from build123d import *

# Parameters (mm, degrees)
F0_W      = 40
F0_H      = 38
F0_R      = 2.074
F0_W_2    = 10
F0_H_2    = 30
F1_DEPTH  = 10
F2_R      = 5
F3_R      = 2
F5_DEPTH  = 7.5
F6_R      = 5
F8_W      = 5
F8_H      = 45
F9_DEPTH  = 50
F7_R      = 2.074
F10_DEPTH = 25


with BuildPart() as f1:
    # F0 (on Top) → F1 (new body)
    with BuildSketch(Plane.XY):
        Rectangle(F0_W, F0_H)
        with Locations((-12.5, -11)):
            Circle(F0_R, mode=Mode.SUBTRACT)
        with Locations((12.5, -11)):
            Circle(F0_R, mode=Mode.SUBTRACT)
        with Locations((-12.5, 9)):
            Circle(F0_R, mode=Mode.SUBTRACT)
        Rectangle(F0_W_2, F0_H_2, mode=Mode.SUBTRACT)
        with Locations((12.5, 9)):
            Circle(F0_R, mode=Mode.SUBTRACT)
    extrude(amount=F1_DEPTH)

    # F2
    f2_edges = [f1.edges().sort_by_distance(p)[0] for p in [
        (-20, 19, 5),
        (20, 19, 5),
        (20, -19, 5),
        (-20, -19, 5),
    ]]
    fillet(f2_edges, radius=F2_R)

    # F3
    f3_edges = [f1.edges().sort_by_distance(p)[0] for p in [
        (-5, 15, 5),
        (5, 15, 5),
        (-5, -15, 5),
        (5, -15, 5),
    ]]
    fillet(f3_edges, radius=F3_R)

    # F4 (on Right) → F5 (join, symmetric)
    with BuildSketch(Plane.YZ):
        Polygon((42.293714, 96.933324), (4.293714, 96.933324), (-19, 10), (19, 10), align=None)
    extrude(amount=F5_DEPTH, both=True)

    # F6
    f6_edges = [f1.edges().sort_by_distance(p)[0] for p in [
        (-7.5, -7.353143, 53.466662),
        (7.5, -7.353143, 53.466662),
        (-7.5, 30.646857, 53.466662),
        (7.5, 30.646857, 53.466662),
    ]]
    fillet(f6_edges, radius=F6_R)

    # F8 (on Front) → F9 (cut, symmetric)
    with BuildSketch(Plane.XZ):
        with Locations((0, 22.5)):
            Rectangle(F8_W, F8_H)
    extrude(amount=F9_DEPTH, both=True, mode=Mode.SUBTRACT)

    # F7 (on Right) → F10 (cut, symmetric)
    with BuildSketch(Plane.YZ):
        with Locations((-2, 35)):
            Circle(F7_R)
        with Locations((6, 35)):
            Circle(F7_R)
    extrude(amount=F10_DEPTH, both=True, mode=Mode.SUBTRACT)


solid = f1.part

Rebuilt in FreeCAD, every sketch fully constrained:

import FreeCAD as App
import Part
import Sketcher

V = App.Vector
Q = App.Units.Quantity


def edges_at(feature, points):
    """Names of the edges that pass closest to the given points."""
    edges = feature.Shape.Edges
    near = lambda p: min(range(len(edges)), key=lambda i: edges[i].distToShape(Part.Vertex(*p))[0])
    return sorted({f"Edge{near(p) + 1}" for p in points})

doc = App.newDocument("Part")
body = doc.addObject("PartDesign::Body", "Body")

# Sketch on XY plane
sketch1 = doc.addObject("Sketcher::SketchObject", "Sketch")
body.addObject(sketch1)
sketch1.AttachmentSupport = (doc.XY_Plane, [""])
sketch1.MapMode = "FlatFace"
sketch1.addGeometry(Part.LineSegment(V(-20, 19, 0), V(-20, -19, 0)), False)
sketch1.addGeometry(Part.LineSegment(V(-20, -19, 0), V(20, -19, 0)), False)
sketch1.addGeometry(Part.LineSegment(V(20, -19, 0), V(20, 19, 0)), False)
sketch1.addGeometry(Part.LineSegment(V(20, 19, 0), V(-20, 19, 0)), False)
sketch1.addGeometry(Part.Circle(V(-12.5, -11, 0), V(0, 0, 1), 2.1), False)
sketch1.addGeometry(Part.Circle(V(12.5, -11, 0), V(0, 0, 1), 2.1), False)
sketch1.addGeometry(Part.LineSegment(V(5, -15, 0), V(-5, -15, 0)), False)
sketch1.addGeometry(Part.LineSegment(V(-5, -15, 0), V(-5, 15, 0)), False)
sketch1.addGeometry(Part.LineSegment(V(-5, 15, 0), V(5, 15, 0)), False)
sketch1.addGeometry(Part.LineSegment(V(5, 15, 0), V(5, -15, 0)), False)
sketch1.addGeometry(Part.Circle(V(-12.5, 9, 0), V(0, 0, 1), 2.1), False)
sketch1.addGeometry(Part.Circle(V(12.5, 9, 0), V(0, 0, 1), 2.1), False)
sketch1.addConstraint(Sketcher.Constraint("Coincident", 0, 2, 1, 1))
sketch1.addConstraint(Sketcher.Constraint("Coincident", 1, 2, 2, 1))
sketch1.addConstraint(Sketcher.Constraint("Coincident", 2, 2, 3, 1))
sketch1.addConstraint(Sketcher.Constraint("Coincident", 3, 2, 0, 1))
sketch1.addConstraint(Sketcher.Constraint("Coincident", 6, 2, 7, 1))
sketch1.addConstraint(Sketcher.Constraint("Coincident", 7, 2, 8, 1))
sketch1.addConstraint(Sketcher.Constraint("Coincident", 8, 2, 9, 1))
sketch1.addConstraint(Sketcher.Constraint("Coincident", 9, 2, 6, 1))
sketch1.addConstraint(Sketcher.Constraint("Vertical", 0))
sketch1.addConstraint(Sketcher.Constraint("Horizontal", 1))
sketch1.addConstraint(Sketcher.Constraint("Vertical", 2))
sketch1.addConstraint(Sketcher.Constraint("Horizontal", 3))
sketch1.addConstraint(Sketcher.Constraint("Horizontal", 6))
sketch1.addConstraint(Sketcher.Constraint("Vertical", 7))
sketch1.addConstraint(Sketcher.Constraint("Horizontal", 8))
sketch1.addConstraint(Sketcher.Constraint("Vertical", 9))
sketch1.addConstraint(Sketcher.Constraint("Equal", 4, 5))
sketch1.addConstraint(Sketcher.Constraint("Equal", 5, 10))
sketch1.addConstraint(Sketcher.Constraint("Equal", 10, 11))
sketch1.addConstraint(Sketcher.Constraint("Symmetric", 0, 2, 2, 2, -1, 1))
sketch1.addConstraint(Sketcher.Constraint("Symmetric", 6, 2, 8, 2, -1, 1))
sketch1.addConstraint(Sketcher.Constraint("Symmetric", 4, 3, 5, 3, -2))
sketch1.addConstraint(Sketcher.Constraint("Symmetric", 10, 3, 11, 3, -2))
sketch1.addConstraint(Sketcher.Constraint("Vertical", 4, 3, 10, 3))
sketch1.addConstraint(Sketcher.Constraint("DistanceX", 1, 1, 1, 2, 40.0))
sketch1.addConstraint(Sketcher.Constraint("DistanceX", 6, 2, 6, 1, 10.0))
sketch1.addConstraint(Sketcher.Constraint("DistanceY", 0, 2, 0, 1, 38.0))
sketch1.addConstraint(Sketcher.Constraint("DistanceY", 7, 1, 7, 2, 30.0))
sketch1.addConstraint(Sketcher.Constraint("Diameter", 4, 4.148))
sketch1.addConstraint(Sketcher.Constraint("DistanceY", 4, 3, -1, 1, 11.0))
sketch1.addConstraint(Sketcher.Constraint("DistanceY", -1, 1, 10, 3, 9.0))
sketch1.addConstraint(Sketcher.Constraint("DistanceX", 4, 3, 5, 3, 25.0))
pad1 = doc.addObject("PartDesign::Pad", "Pad")
body.addObject(pad1)
pad1.Profile = sketch1
pad1.Length = 10
doc.recompute()

fillet = doc.addObject("PartDesign::Fillet", "Fillet")
body.addObject(fillet)
fillet.Base = (pad1, edges_at(pad1, [
    (-20, 19, 5),
    (20, 19, 5),
    (20, -19, 5),
    (-20, -19, 5),
]))
fillet.Radius = 5
doc.recompute()

fillet2 = doc.addObject("PartDesign::Fillet", "Fillet001")
body.addObject(fillet2)
fillet2.Base = (fillet, edges_at(fillet, [
    (-5, 15, 5),
    (5, 15, 5),
    (-5, -15, 5),
    (5, -15, 5),
]))
fillet2.Radius = 2

# Sketch on YZ plane
sketch2 = doc.addObject("Sketcher::SketchObject", "Sketch001")
body.addObject(sketch2)
sketch2.AttachmentSupport = (doc.YZ_Plane, [""])
sketch2.MapMode = "FlatFace"
sketch2.addGeometry(Part.LineSegment(V(42, 97, 0), V(4, 97, 0)), False)
sketch2.addGeometry(Part.LineSegment(V(4, 97, 0), V(-19, 10, 0)), False)
sketch2.addGeometry(Part.LineSegment(V(-19, 10, 0), V(19, 10, 0)), False)
sketch2.addGeometry(Part.LineSegment(V(19, 10, 0), V(42, 97, 0)), False)
sketch2.addConstraint(Sketcher.Constraint("Coincident", 0, 2, 1, 1))
sketch2.addConstraint(Sketcher.Constraint("Coincident", 1, 2, 2, 1))
sketch2.addConstraint(Sketcher.Constraint("Coincident", 2, 2, 3, 1))
sketch2.addConstraint(Sketcher.Constraint("Coincident", 3, 2, 0, 1))
sketch2.addConstraint(Sketcher.Constraint("Horizontal", 0))
sketch2.addConstraint(Sketcher.Constraint("Horizontal", 2))
sketch2.addConstraint(Sketcher.Constraint("Parallel", 1, 3))
sketch2.addConstraint(Sketcher.Constraint("DistanceX", 0, 2, 0, 1, 38.0))
sketch2.addConstraint(Sketcher.Constraint("Angle", 1, Q("-105 deg")))
sketch2.addConstraint(Sketcher.Constraint("Distance", 1, 90.0))
sketch2.addConstraint(Sketcher.Constraint("DistanceX", 1, 2, -1, 1, 19.0))
sketch2.addConstraint(Sketcher.Constraint("DistanceY", -1, 1, 1, 2, 10.0))
pad2 = doc.addObject("PartDesign::Pad", "Pad001")
body.addObject(pad2)
pad2.Profile = sketch2
pad2.Length = 15
pad2.Midplane = True
doc.recompute()

fillet3 = doc.addObject("PartDesign::Fillet", "Fillet002")
body.addObject(fillet3)
fillet3.Base = (pad2, edges_at(pad2, [
    (-7.5, -7.353, 53.467),
    (7.5, -7.353, 53.467),
    (-7.5, 30.647, 53.467),
    (7.5, 30.647, 53.467),
]))
fillet3.Radius = 5

# Sketch on XZ plane
sketch3 = doc.addObject("Sketcher::SketchObject", "Sketch002")
body.addObject(sketch3)
sketch3.AttachmentSupport = (doc.XZ_Plane, [""])
sketch3.MapMode = "FlatFace"
sketch3.addGeometry(Part.LineSegment(V(-2, 45, 0), V(-2, 0, 0)), False)
sketch3.addGeometry(Part.LineSegment(V(-2, 0, 0), V(2, 0, 0)), False)
sketch3.addGeometry(Part.LineSegment(V(2, 0, 0), V(2, 45, 0)), False)
sketch3.addGeometry(Part.LineSegment(V(2, 45, 0), V(-2, 45, 0)), False)
sketch3.addConstraint(Sketcher.Constraint("Coincident", 0, 2, 1, 1))
sketch3.addConstraint(Sketcher.Constraint("Coincident", 1, 2, 2, 1))
sketch3.addConstraint(Sketcher.Constraint("Coincident", 2, 2, 3, 1))
sketch3.addConstraint(Sketcher.Constraint("Coincident", 3, 2, 0, 1))
sketch3.addConstraint(Sketcher.Constraint("Vertical", 0))
sketch3.addConstraint(Sketcher.Constraint("Horizontal", 1))
sketch3.addConstraint(Sketcher.Constraint("Vertical", 2))
sketch3.addConstraint(Sketcher.Constraint("Horizontal", 3))
sketch3.addConstraint(Sketcher.Constraint("Symmetric", 0, 2, 1, 2, -1, 1))
sketch3.addConstraint(Sketcher.Constraint("DistanceX", 1, 1, 1, 2, 5.0))
sketch3.addConstraint(Sketcher.Constraint("DistanceY", 0, 2, 0, 1, 45.0))
pocket1 = doc.addObject("PartDesign::Pocket", "Pocket")
body.addObject(pocket1)
pocket1.Profile = sketch3
pocket1.Length = 100
pocket1.Midplane = True

# Sketch on YZ plane
sketch4 = doc.addObject("Sketcher::SketchObject", "Sketch003")
body.addObject(sketch4)
sketch4.AttachmentSupport = (doc.YZ_Plane, [""])
sketch4.MapMode = "FlatFace"
sketch4.addGeometry(Part.Circle(V(-2, 35, 0), V(0, 0, 1), 2.1), False)
sketch4.addGeometry(Part.Circle(V(6, 35, 0), V(0, 0, 1), 2.1), False)
sketch4.addConstraint(Sketcher.Constraint("Equal", 0, 1))
sketch4.addConstraint(Sketcher.Constraint("Horizontal", 0, 3, 1, 3))
sketch4.addConstraint(Sketcher.Constraint("Diameter", 0, 4.148))
sketch4.addConstraint(Sketcher.Constraint("DistanceX", 0, 3, -1, 1, 2.0))
sketch4.addConstraint(Sketcher.Constraint("DistanceY", -1, 1, 0, 3, 35.0))
sketch4.addConstraint(Sketcher.Constraint("DistanceX", -1, 1, 1, 3, 6.0))
pocket2 = doc.addObject("PartDesign::Pocket", "Pocket001")
body.addObject(pocket2)
pocket2.Profile = sketch4
pocket2.Length = 50
pocket2.Midplane = True

doc.recompute()
